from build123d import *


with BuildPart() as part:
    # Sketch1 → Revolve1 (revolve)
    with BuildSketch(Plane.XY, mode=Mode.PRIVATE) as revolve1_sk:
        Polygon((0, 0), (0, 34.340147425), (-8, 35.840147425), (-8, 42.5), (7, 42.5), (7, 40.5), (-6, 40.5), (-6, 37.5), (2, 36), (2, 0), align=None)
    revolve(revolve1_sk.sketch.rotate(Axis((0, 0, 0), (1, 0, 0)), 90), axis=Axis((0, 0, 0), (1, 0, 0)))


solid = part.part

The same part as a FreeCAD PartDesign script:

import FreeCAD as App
import Part
import Sketcher

V = App.Vector
Q = App.Units.Quantity


def add_polygon(sketch, points):
    """Adds a closed chain of lines whose ends are joined by coincident constraints."""
    first, n = sketch.GeometryCount, len(points)
    for a, b in zip(points, points[1:] + points[:1]):
        sketch.addGeometry(Part.LineSegment(App.Vector(*a, 0), App.Vector(*b, 0)), False)
    for i in range(n):
        sketch.addConstraint(Sketcher.Constraint("Coincident", first + i, 2, first + (i + 1) % n, 1))

doc = App.newDocument("Part")
body = doc.addObject("PartDesign::Body", "Body")

# Sketch on XY plane
sketch1 = body.newObject("Sketcher::SketchObject", "Sketch")
sketch1.AttachmentSupport = (doc.getObject("XY_Plane"), [""])
sketch1.MapMode = "FlatFace"
add_polygon(sketch1, [(0, 34.3), (0, 0), (2, 0), (2, 36), (-6, 37.5), (-6, 40.5), (7, 40.5), (7, 42.5), (-8, 42.5), (-8, 35.8)])  # lines 0-9
sketch1.addConstraint([
    Sketcher.Constraint("Vertical", 0),
    Sketcher.Constraint("Horizontal", 1),
    Sketcher.Constraint("Vertical", 2),
    Sketcher.Constraint("Vertical", 4),
    Sketcher.Constraint("Horizontal", 5),
    Sketcher.Constraint("Vertical", 6),
    Sketcher.Constraint("Horizontal", 7),
    Sketcher.Constraint("Vertical", 8),
    Sketcher.Constraint("Coincident", 0, 2, -1, 1),
    Sketcher.Constraint("Parallel", 3, 9),
    Sketcher.Constraint("Equal", 1, 6),
    Sketcher.Constraint("Equal", 3, 9),
    Sketcher.Constraint("DistanceX", 1, 1, 1, 2, Q("2 mm")),
    Sketcher.Constraint("DistanceX", 5, 1, 5, 2, Q("13 mm")),
    Sketcher.Constraint("DistanceY", 2, 1, 2, 2, Q("36 mm")),
    Sketcher.Constraint("DistanceY", 4, 1, 4, 2, Q("3 mm")),
    Sketcher.Constraint("DistanceX", 3, 2, -1, 1, Q("6 mm")),
    Sketcher.Constraint("DistanceY", -1, 1, 3, 2, Q("37.5 mm")),
    Sketcher.Constraint("DistanceY", 0, 2, 0, 1, Q("34.340147 mm")),
])
revolution = body.newObject("PartDesign::Revolution", "Revolution")
revolution.Profile = sketch1
revolution.ReferenceAxis = (sketch1, ["H_Axis"])
revolution.Angle = 360

doc.recompute()
